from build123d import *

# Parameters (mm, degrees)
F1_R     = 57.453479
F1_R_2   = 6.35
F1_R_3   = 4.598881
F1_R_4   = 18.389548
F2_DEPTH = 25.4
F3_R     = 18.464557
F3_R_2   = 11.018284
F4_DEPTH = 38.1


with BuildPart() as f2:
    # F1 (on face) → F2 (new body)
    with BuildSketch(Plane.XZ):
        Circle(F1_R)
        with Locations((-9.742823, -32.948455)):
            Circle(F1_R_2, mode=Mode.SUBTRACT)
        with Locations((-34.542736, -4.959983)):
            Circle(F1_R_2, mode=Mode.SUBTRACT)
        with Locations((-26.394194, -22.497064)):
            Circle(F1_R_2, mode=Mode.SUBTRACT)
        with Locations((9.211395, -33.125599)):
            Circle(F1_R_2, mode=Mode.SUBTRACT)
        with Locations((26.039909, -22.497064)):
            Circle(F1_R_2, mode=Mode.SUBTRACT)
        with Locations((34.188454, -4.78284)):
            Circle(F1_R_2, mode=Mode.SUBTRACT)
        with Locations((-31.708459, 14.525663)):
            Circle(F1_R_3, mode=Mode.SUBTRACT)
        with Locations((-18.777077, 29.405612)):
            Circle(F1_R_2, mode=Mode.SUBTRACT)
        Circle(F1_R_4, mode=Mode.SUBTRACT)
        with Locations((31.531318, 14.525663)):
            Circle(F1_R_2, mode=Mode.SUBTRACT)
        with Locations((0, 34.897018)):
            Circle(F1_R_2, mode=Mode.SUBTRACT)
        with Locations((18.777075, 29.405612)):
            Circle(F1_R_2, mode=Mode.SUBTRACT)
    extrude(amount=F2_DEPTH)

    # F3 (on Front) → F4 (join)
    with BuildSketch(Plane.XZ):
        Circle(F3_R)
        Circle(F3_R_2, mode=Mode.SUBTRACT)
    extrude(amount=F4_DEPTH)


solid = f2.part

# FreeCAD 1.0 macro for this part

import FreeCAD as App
import Part
import Sketcher

V = App.Vector
Q = App.Units.Quantity

doc = App.newDocument("Part")
body = doc.addObject("PartDesign::Body", "Body")

# Sketch on XZ plane
sketch1 = body.newObject("Sketcher::SketchObject", "Sketch")
sketch1.AttachmentSupport = (doc.getObject("XZ_Plane"), [""])
sketch1.MapMode = "FlatFace"
sketch1.addGeometry([
    Part.Circle(V(0, 0, 0), V(0, 0, 1), 57.5),  # 0
    Part.Circle(V(-26.4, -22.5, 0), V(0, 0, 1), 6.3),  # 1
    Part.Circle(V(-9.7, -32.9, 0), V(0, 0, 1), 6.3),  # 2
    Part.Circle(V(-34.5, -5, 0), V(0, 0, 1), 6.3),  # 3
    Part.Circle(V(9.2, -33.1, 0), V(0, 0, 1), 6.3),  # 4
    Part.Circle(V(26, -22.5, 0), V(0, 0, 1), 6.3),  # 5
    Part.Circle(V(0, 0, 0), V(0, 0, 1), 18.4),  # 6
    Part.Circle(V(34.2, -4.8, 0), V(0, 0, 1), 6.3),  # 7
    Part.Circle(V(-31.7, 14.5, 0), V(0, 0, 1), 4.6),  # 8
    Part.Circle(V(-18.8, 29.4, 0), V(0, 0, 1), 6.3),  # 9
    Part.Circle(V(31.5, 14.5, 0), V(0, 0, 1), 6.3),  # 10
    Part.Circle(V(18.8, 29.4, 0), V(0, 0, 1), 6.3),  # 11
    Part.Circle(V(0, 34.9, 0), V(0, 0, 1), 6.3),  # 12
], False)
sketch1.addConstraint([
    Sketcher.Constraint("Coincident", 0, 3, -1, 1),
    Sketcher.Constraint("Coincident", 6, 3, -1, 1),
    Sketcher.Constraint("Equal", 1, 2),
    Sketcher.Constraint("Equal", 2, 3),
    Sketcher.Constraint("Equal", 3, 4),
    Sketcher.Constraint("Equal", 4, 5),
    Sketcher.Constraint("Equal", 5, 7),
    Sketcher.Constraint("Equal", 7, 9),
    Sketcher.Constraint("Equal", 9, 10),
    Sketcher.Constraint("Equal", 10, 11),
    Sketcher.Constraint("Equal", 11, 12),
    Sketcher.Constraint("Symmetric", 9, 3, 11, 3, -2),
    Sketcher.Constraint("PointOnObject", 12, 3, -2),
    Sketcher.Constraint("Horizontal", 1, 3, 5, 3),
    Sketcher.Constraint("Horizontal", 8, 3, 10, 3),
    Sketcher.Constraint("Diameter", 1, Q("0.5 in")),
    Sketcher.Constraint("Diameter", 0, 114.906958),
    Sketcher.Constraint("Diameter", 6, 36.779096),
    Sketcher.Constraint("Diameter", 8, 9.197762),
    Sketcher.Constraint("DistanceY", 4, 3, -1, 1, 33.125599),
    Sketcher.Constraint("DistanceX", -1, 1, 5, 3, 26.039909),
    Sketcher.Constraint("DistanceY", 7, 3, -1, 1, 4.78284),
    Sketcher.Constraint("DistanceX", 8, 3, -1, 1, 31.708459),
    Sketcher.Constraint("DistanceY", -1, 1, 12, 3, 34.897018),
    Sketcher.Constraint("DistanceX", 1, 3, 2, 3, 16.651371),
    Sketcher.Constraint("DistanceY", 2, 3, 1, 3, 10.451391),
    Sketcher.Constraint("DistanceX", 3, 3, 1, 3, 8.148542),
    Sketcher.Constraint("DistanceY", 1, 3, 3, 3, 17.537081),
    Sketcher.Constraint("DistanceX", 1, 3, 4, 3, 35.605589),
    Sketcher.Constraint("DistanceX", 4, 3, 7, 3, 24.977059),
    Sketcher.Constraint("DistanceY", 2, 3, 8, 3, 47.474118),
    Sketcher.Constraint("DistanceY", 8, 3, 9, 3, 14.879949),
    Sketcher.Constraint("DistanceX", 3, 3, 9, 3, 15.765659),
    Sketcher.Constraint("DistanceX", 5, 3, 10, 3, 5.491409),
    Sketcher.Constraint("DistanceX", 11, 3, 7, 3, 15.411379),
    Sketcher.Constraint("DistanceY", 7, 3, 11, 3, 34.188452),
])
pad1 = body.newObject("PartDesign::Pad", "Pad")
pad1.Profile = sketch1
pad1.Length = Q("1 in")

# Sketch on XZ plane
sketch2 = body.newObject("Sketcher::SketchObject", "Sketch001")
sketch2.AttachmentSupport = (doc.getObject("XZ_Plane"), [""])
sketch2.MapMode = "FlatFace"
sketch2.addGeometry([
    Part.Circle(V(0, 0, 0), V(0, 0, 1), 18),
    Part.Circle(V(0, 0, 0), V(0, 0, 1), 11),
], False)
sketch2.addConstraint([
    Sketcher.Constraint("Coincident", 0, 3, -1, 1),
    Sketcher.Constraint("Coincident", 1, 3, -1, 1),
    Sketcher.Constraint("Diameter", 0, 36.929114),
    Sketcher.Constraint("Diameter", 1, 22.036568),
])
pad2 = body.newObject("PartDesign::Pad", "Pad001")
pad2.Profile = sketch2
pad2.Length = Q("1.5 in")

doc.recompute()
